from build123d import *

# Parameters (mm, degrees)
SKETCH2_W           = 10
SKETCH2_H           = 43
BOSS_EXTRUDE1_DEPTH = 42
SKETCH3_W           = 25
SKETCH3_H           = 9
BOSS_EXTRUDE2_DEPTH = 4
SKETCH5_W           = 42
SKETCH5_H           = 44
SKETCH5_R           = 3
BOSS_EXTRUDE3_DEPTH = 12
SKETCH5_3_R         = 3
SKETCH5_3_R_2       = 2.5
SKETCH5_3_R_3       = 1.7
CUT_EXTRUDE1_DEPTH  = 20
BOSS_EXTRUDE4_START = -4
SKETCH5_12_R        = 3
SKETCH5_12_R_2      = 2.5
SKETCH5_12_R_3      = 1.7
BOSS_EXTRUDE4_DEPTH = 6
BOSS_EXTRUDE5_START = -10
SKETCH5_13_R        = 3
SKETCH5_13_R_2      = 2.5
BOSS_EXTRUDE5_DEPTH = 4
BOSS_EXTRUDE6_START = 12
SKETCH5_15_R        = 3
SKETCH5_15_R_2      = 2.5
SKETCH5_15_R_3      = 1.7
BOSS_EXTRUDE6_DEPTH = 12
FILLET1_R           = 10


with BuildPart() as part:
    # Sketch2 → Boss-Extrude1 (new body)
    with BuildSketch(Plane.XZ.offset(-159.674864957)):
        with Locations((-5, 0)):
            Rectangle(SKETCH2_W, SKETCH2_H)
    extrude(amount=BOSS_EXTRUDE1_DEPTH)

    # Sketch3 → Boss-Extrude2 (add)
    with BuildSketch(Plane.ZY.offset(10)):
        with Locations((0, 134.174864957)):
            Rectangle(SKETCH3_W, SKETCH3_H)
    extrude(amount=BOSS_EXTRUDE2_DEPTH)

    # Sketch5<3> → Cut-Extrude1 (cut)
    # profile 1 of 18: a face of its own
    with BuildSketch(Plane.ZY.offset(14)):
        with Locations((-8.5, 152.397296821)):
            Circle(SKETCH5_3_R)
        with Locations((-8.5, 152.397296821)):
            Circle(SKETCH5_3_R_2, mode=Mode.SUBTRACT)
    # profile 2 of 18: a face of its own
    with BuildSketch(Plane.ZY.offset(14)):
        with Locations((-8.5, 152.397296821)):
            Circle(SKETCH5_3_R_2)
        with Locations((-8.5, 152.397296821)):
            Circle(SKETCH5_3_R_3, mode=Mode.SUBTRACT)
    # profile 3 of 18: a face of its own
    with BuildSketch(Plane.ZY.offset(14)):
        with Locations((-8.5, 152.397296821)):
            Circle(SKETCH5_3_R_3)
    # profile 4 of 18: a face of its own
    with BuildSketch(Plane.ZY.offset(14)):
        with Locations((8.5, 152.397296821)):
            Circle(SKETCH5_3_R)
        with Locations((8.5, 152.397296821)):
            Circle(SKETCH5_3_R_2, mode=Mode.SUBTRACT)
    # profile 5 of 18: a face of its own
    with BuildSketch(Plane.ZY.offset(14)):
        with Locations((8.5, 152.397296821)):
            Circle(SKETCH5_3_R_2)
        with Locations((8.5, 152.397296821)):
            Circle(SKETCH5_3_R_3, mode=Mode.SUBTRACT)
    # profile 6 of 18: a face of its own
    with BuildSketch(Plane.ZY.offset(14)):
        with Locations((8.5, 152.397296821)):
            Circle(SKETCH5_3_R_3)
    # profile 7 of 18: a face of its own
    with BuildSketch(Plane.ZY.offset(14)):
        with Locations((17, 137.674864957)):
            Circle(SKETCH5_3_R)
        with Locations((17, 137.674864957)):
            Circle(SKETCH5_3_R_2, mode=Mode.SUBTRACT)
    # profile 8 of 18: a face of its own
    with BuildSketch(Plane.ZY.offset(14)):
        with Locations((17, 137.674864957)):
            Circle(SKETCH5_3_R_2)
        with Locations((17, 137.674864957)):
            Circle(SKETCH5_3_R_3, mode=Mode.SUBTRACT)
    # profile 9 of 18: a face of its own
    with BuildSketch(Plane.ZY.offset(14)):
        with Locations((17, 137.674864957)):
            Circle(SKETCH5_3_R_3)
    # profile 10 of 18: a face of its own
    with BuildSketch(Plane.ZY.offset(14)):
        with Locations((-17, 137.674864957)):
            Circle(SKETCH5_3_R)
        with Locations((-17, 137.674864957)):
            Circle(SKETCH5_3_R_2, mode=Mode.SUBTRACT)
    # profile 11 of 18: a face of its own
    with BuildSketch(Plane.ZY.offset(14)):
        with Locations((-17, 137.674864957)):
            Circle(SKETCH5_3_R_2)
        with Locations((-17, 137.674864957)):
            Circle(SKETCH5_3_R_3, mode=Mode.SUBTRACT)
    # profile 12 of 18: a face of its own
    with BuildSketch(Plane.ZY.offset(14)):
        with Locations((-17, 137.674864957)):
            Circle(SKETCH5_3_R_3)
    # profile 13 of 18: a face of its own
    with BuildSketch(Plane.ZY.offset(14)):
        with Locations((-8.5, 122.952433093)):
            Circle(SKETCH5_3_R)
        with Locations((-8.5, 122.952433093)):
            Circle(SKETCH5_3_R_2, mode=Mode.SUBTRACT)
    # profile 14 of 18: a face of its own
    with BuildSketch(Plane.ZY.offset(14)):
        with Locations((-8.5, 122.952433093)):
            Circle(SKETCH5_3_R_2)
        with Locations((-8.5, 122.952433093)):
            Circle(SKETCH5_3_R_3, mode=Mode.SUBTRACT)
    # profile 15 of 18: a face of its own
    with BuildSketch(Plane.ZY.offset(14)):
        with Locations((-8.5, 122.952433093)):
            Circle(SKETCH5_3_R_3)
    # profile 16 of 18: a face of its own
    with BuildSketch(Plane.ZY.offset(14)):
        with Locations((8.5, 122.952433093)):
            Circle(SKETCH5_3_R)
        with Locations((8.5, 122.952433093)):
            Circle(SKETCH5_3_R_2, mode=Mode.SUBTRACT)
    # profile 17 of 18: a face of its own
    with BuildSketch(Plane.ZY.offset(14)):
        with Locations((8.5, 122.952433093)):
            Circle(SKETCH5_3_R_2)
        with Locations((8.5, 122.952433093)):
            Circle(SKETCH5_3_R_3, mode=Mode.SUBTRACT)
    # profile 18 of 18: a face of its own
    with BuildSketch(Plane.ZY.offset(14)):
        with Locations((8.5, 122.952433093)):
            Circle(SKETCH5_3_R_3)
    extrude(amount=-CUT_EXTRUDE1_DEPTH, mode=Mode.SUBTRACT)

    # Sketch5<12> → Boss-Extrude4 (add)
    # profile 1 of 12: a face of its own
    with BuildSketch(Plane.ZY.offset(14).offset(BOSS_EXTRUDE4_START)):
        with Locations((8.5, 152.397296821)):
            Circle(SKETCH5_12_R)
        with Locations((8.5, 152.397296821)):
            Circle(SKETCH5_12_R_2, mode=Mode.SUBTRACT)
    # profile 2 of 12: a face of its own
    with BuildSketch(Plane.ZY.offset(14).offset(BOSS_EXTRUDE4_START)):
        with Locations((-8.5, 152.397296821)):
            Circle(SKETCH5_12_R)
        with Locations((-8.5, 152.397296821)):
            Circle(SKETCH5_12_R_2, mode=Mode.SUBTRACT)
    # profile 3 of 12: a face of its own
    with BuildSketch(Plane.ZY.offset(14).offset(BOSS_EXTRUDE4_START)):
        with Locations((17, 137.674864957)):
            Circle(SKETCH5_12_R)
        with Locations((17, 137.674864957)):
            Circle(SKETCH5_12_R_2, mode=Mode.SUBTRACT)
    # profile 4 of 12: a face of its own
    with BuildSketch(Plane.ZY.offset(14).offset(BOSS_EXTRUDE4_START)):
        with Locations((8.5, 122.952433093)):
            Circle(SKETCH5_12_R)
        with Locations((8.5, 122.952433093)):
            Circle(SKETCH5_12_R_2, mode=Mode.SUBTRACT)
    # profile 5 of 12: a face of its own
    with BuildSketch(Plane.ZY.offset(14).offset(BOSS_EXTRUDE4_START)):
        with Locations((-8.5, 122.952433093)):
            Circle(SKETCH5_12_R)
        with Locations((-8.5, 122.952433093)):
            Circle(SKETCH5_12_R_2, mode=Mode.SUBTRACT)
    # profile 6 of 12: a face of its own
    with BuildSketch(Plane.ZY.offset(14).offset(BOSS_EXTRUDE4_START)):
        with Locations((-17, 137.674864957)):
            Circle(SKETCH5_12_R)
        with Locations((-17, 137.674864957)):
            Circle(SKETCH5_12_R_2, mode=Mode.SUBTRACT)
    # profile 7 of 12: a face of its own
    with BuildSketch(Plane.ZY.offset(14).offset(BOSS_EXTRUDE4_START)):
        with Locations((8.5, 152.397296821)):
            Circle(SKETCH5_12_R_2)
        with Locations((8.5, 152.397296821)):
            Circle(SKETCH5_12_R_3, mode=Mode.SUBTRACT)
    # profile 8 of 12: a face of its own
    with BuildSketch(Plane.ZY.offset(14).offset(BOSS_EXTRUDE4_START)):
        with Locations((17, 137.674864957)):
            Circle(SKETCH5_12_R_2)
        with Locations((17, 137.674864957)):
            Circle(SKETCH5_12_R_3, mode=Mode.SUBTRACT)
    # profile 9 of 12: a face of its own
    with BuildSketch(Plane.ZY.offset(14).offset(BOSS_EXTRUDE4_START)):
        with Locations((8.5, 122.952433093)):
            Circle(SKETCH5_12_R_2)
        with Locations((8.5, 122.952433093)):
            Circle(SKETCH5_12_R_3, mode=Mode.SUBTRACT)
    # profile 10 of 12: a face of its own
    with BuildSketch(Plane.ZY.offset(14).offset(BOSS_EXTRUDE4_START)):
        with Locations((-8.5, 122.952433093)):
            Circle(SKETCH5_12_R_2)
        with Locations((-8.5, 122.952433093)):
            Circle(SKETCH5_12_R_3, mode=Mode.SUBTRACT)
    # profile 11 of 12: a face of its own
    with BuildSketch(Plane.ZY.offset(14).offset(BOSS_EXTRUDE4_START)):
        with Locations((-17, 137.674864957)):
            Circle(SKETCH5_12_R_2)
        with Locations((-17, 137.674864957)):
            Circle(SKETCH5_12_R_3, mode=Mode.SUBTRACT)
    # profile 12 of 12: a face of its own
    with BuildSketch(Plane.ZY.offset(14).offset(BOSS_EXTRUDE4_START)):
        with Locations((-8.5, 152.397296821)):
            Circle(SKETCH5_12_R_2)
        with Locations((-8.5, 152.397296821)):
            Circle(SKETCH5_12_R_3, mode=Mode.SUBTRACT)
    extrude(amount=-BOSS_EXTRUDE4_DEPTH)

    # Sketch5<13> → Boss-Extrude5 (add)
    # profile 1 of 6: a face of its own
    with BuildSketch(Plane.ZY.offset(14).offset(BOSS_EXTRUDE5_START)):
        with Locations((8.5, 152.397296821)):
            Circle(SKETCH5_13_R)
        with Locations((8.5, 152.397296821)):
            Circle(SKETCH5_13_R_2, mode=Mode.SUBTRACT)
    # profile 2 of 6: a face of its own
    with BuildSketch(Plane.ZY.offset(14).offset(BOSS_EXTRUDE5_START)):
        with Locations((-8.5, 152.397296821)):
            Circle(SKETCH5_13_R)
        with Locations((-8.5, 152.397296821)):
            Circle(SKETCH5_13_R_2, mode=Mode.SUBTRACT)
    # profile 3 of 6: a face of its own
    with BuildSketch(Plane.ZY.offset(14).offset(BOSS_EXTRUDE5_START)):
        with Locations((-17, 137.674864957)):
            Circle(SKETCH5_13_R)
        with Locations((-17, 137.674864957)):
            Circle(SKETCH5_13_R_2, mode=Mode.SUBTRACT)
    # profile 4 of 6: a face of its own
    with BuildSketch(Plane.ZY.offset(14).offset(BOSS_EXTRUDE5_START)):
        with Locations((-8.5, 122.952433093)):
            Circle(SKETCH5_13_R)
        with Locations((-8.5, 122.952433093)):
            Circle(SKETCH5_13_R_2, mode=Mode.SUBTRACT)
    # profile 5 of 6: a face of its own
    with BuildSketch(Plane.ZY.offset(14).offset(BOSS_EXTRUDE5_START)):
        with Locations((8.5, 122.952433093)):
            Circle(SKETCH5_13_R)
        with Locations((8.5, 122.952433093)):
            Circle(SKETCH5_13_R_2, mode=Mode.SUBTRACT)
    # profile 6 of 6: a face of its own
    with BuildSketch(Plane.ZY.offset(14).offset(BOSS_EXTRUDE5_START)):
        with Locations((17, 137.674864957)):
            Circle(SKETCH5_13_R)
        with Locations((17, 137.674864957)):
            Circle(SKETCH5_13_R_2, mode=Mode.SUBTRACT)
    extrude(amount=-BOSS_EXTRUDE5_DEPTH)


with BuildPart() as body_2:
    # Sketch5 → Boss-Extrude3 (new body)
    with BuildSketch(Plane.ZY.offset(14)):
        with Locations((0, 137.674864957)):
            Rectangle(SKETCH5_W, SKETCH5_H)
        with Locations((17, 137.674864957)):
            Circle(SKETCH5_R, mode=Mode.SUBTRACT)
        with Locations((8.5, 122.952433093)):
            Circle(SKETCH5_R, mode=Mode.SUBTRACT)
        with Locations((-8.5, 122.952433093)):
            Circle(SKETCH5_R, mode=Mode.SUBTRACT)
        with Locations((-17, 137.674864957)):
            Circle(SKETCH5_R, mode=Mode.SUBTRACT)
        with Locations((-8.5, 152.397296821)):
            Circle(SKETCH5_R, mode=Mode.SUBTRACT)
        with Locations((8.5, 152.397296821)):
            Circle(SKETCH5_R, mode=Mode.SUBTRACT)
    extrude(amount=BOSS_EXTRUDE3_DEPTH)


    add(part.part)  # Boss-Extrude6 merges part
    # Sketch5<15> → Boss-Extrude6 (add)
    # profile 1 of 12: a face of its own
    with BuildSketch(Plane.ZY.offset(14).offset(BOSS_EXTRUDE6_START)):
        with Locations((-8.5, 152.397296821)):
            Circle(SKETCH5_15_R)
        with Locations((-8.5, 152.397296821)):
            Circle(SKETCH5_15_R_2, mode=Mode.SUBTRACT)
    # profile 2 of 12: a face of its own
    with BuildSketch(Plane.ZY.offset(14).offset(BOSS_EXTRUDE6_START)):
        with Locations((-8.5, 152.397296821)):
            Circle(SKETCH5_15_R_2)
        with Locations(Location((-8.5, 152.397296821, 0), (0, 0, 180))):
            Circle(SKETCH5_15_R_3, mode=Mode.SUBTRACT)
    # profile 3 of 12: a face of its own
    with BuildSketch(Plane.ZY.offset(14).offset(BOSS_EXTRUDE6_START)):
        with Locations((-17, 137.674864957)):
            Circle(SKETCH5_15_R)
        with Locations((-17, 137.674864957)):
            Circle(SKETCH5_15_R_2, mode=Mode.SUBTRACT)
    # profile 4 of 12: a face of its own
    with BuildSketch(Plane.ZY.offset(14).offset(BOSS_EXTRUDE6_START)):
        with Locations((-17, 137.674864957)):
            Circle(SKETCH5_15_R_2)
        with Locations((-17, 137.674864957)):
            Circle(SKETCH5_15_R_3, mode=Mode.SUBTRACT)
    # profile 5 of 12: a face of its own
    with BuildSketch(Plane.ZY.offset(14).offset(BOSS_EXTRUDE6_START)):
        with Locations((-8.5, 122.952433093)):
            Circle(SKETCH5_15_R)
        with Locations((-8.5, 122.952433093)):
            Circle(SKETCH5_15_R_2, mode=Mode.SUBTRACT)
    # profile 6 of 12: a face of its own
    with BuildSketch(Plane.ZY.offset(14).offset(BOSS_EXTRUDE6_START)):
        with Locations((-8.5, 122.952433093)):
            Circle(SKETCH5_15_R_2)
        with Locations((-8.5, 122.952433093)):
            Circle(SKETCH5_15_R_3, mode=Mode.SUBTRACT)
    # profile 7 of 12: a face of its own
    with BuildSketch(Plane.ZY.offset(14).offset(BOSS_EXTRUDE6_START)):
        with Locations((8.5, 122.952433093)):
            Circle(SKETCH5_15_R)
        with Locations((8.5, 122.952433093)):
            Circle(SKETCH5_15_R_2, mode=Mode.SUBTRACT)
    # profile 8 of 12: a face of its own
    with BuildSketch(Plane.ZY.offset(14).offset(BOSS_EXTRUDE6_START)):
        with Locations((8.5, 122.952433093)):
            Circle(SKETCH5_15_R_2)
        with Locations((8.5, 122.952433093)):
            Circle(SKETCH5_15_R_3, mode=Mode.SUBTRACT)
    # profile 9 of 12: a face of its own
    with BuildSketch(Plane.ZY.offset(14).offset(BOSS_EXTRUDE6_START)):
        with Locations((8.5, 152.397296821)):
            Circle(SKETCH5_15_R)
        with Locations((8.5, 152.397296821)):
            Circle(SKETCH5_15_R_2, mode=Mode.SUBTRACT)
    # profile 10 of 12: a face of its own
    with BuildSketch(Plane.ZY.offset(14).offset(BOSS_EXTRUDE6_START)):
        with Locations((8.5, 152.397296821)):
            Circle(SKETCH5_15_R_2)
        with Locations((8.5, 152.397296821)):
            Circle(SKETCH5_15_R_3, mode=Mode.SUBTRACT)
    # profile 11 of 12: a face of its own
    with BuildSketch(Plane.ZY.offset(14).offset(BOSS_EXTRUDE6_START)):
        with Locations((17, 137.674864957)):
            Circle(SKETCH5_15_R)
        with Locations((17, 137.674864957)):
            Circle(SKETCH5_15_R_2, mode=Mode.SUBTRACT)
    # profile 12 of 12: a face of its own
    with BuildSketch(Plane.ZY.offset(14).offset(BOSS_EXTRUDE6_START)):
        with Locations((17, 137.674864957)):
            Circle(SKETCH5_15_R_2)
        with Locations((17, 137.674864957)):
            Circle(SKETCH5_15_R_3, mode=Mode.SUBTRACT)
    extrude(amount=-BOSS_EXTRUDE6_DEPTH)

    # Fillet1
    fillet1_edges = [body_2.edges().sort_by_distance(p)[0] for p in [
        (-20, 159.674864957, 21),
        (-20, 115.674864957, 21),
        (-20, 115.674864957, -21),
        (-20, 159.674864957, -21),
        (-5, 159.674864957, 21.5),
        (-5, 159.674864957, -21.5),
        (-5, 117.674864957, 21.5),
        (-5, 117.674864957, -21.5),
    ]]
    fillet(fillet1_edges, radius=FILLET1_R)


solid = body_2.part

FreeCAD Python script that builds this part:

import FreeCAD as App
import Part
import Sketcher

V = App.Vector
Q = App.Units.Quantity


def edges_at(feature, points):
    """Names of the edges that pass closest to the given points."""
    edges = feature.Shape.Edges
    near = lambda p: min(range(len(edges)), key=lambda i: edges[i].distToShape(Part.Vertex(*p))[0])
    return sorted({f"Edge{near(p) + 1}" for p in points})


def add_polygon(sketch, points):
    """Adds a closed chain of lines whose ends are joined by coincident constraints."""
    first, n = sketch.GeometryCount, len(points)
    for a, b in zip(points, points[1:] + points[:1]):
        sketch.addGeometry(Part.LineSegment(App.Vector(*a, 0), App.Vector(*b, 0)), False)
    for i in range(n):
        sketch.addConstraint(Sketcher.Constraint("Coincident", first + i, 2, first + (i + 1) % n, 1))

doc = App.newDocument("Part")
body = doc.addObject("PartDesign::Body", "Body")

# Sketch on XZ plane
sketch1 = doc.addObject("Sketcher::SketchObject", "Sketch")
body.addObject(sketch1)
sketch1.AttachmentSupport = (doc.XZ_Plane, [""])
sketch1.MapMode = "FlatFace"
sketch1.AttachmentOffset = App.Placement(V(0, 0, -159.674865), App.Rotation())
add_polygon(sketch1, [(-10, 22), (-10, -22), (0, -22), (0, 22)])  # lines 0-3
sketch1.addConstraint(Sketcher.Constraint("Vertical", 0))
sketch1.addConstraint(Sketcher.Constraint("Horizontal", 1))
sketch1.addConstraint(Sketcher.Constraint("Vertical", 2))
sketch1.addConstraint(Sketcher.Constraint("Horizontal", 3))
sketch1.addConstraint(Sketcher.Constraint("Symmetric", 1, 2, 2, 2, -1, 1))
sketch1.addConstraint(Sketcher.Constraint("DistanceX", 1, 1, 1, 2, Q("10 mm")))
sketch1.addConstraint(Sketcher.Constraint("DistanceY", 0, 2, 0, 1, Q("43 mm")))
pad1 = doc.addObject("PartDesign::Pad", "Pad")
body.addObject(pad1)
pad1.Profile = sketch1
pad1.Length = 42

# Sketch on YZ plane
sketch2 = doc.addObject("Sketcher::SketchObject", "Sketch001")
body.addObject(sketch2)
sketch2.AttachmentSupport = (doc.YZ_Plane, [""])
sketch2.MapMode = "FlatFace"
sketch2.AttachmentOffset = App.Placement(V(0, 0, -10), App.Rotation())
add_polygon(sketch2, [(139, -12), (130, -12), (130, 12), (139, 12)])  # lines 0-3
sketch2.addConstraint(Sketcher.Constraint("Horizontal", 0))
sketch2.addConstraint(Sketcher.Constraint("Vertical", 1))
sketch2.addConstraint(Sketcher.Constraint("Horizontal", 2))
sketch2.addConstraint(Sketcher.Constraint("Vertical", 3))
sketch2.addConstraint(Sketcher.Constraint("DistanceX", 0, 2, 0, 1, Q("9 mm")))
sketch2.addConstraint(Sketcher.Constraint("DistanceY", 1, 1, 1, 2, Q("25 mm")))
sketch2.addConstraint(Sketcher.Constraint("DistanceY", 0, 2, -1, 1, Q("12.5 mm")))
sketch2.addConstraint(Sketcher.Constraint("DistanceX", -1, 1, 0, 2, Q("129.674865 mm")))
pad2 = doc.addObject("PartDesign::Pad", "Pad001")
body.addObject(pad2)
pad2.Profile = sketch2
pad2.Length = 4
pad2.Reversed = True

# Sketch on YZ plane
sketch3 = doc.addObject("Sketcher::SketchObject", "Sketch002")
body.addObject(sketch3)
sketch3.AttachmentSupport = (doc.YZ_Plane, [""])
sketch3.MapMode = "FlatFace"
sketch3.AttachmentOffset = App.Placement(V(0, 0, -14), App.Rotation())
sketch3.addGeometry(Part.Circle(V(152.4, -8.5, 0), V(0, 0, 1), 3), False)
sketch3.addGeometry(Part.Circle(V(152.4, 8.5, 0), V(0, 0, 1), 3), False)
sketch3.addGeometry(Part.Circle(V(137.7, 17, 0), V(0, 0, 1), 3), False)
sketch3.addGeometry(Part.Circle(V(137.7, -17, 0), V(0, 0, 1), 3), False)
sketch3.addGeometry(Part.Circle(V(123, -8.5, 0), V(0, 0, 1), 3), False)
sketch3.addGeometry(Part.Circle(V(123, 8.5, 0), V(0, 0, 1), 3), False)
sketch3.addConstraint(Sketcher.Constraint("Equal", 0, 1))
sketch3.addConstraint(Sketcher.Constraint("Equal", 1, 2))
sketch3.addConstraint(Sketcher.Constraint("Equal", 2, 3))
sketch3.addConstraint(Sketcher.Constraint("Equal", 3, 4))
sketch3.addConstraint(Sketcher.Constraint("Equal", 4, 5))
sketch3.addConstraint(Sketcher.Constraint("Symmetric", 0, 3, 1, 3, -1))
sketch3.addConstraint(Sketcher.Constraint("Symmetric", 2, 3, 3, 3, -1))
sketch3.addConstraint(Sketcher.Constraint("Symmetric", 4, 3, 5, 3, -1))
sketch3.addConstraint(Sketcher.Constraint("Horizontal", 0, 3, 4, 3))
sketch3.addConstraint(Sketcher.Constraint("Diameter", 0, Q("6 mm")))
sketch3.addConstraint(Sketcher.Constraint("DistanceY", -1, 1, 2, 3, Q("17 mm")))
sketch3.addConstraint(Sketcher.Constraint("DistanceY", 0, 3, 1, 3, Q("17 mm")))
sketch3.addConstraint(Sketcher.Constraint("DistanceX", 2, 3, 1, 3, Q("14.722432 mm")))
sketch3.addConstraint(Sketcher.Constraint("DistanceX", 4, 3, 3, 3, Q("14.722432 mm")))
sketch3.addConstraint(Sketcher.Constraint("DistanceX", -1, 1, 0, 3, Q("152.397297 mm")))
pocket1 = doc.addObject("PartDesign::Pocket", "Pocket")
body.addObject(pocket1)
pocket1.Profile = sketch3
pocket1.Length = 20
pocket1.Reversed = True

# Sketch on YZ plane
sketch4 = doc.addObject("Sketcher::SketchObject", "Sketch003")
body.addObject(sketch4)
sketch4.AttachmentSupport = (doc.YZ_Plane, [""])
sketch4.MapMode = "FlatFace"
sketch4.AttachmentOffset = App.Placement(V(0, 0, -10), App.Rotation())
sketch4.addGeometry(Part.Circle(V(152.4, 8.5, 0), V(0, 0, 1), 3), False)
sketch4.addGeometry(Part.Circle(V(152.4, 8.5, 0), V(0, 0, 1), 1.7), False)
sketch4.addGeometry(Part.Circle(V(152.4, -8.5, 0), V(0, 0, 1), 3), False)
sketch4.addGeometry(Part.Circle(V(152.4, -8.5, 0), V(0, 0, 1), 1.7), False)
sketch4.addGeometry(Part.Circle(V(137.7, 17, 0), V(0, 0, 1), 3), False)
sketch4.addGeometry(Part.Circle(V(137.7, 17, 0), V(0, 0, 1), 1.7), False)
sketch4.addGeometry(Part.Circle(V(123, 8.5, 0), V(0, 0, 1), 3), False)
sketch4.addGeometry(Part.Circle(V(123, 8.5, 0), V(0, 0, 1), 1.7), False)
sketch4.addGeometry(Part.Circle(V(123, -8.5, 0), V(0, 0, 1), 3), False)
sketch4.addGeometry(Part.Circle(V(123, -8.5, 0), V(0, 0, 1), 1.7), False)
sketch4.addGeometry(Part.Circle(V(137.7, -17, 0), V(0, 0, 1), 3), False)
sketch4.addGeometry(Part.Circle(V(137.7, -17, 0), V(0, 0, 1), 1.7), False)
sketch4.addConstraint(Sketcher.Constraint("Coincident", 1, 3, 0, 3))
sketch4.addConstraint(Sketcher.Constraint("Coincident", 3, 3, 2, 3))
sketch4.addConstraint(Sketcher.Constraint("Coincident", 5, 3, 4, 3))
sketch4.addConstraint(Sketcher.Constraint("Coincident", 7, 3, 6, 3))
sketch4.addConstraint(Sketcher.Constraint("Coincident", 9, 3, 8, 3))
sketch4.addConstraint(Sketcher.Constraint("Coincident", 11, 3, 10, 3))
sketch4.addConstraint(Sketcher.Constraint("Equal", 0, 2))
sketch4.addConstraint(Sketcher.Constraint("Equal", 1, 3))
sketch4.addConstraint(Sketcher.Constraint("Equal", 2, 4))
sketch4.addConstraint(Sketcher.Constraint("Equal", 3, 5))
sketch4.addConstraint(Sketcher.Constraint("Equal", 4, 6))
sketch4.addConstraint(Sketcher.Constraint("Equal", 5, 7))
sketch4.addConstraint(Sketcher.Constraint("Equal", 6, 8))
sketch4.addConstraint(Sketcher.Constraint("Equal", 7, 9))
sketch4.addConstraint(Sketcher.Constraint("Equal", 8, 10))
sketch4.addConstraint(Sketcher.Constraint("Equal", 9, 11))
sketch4.addConstraint(Sketcher.Constraint("Symmetric", 0, 3, 2, 3, -1))
sketch4.addConstraint(Sketcher.Constraint("Symmetric", 6, 3, 8, 3, -1))
sketch4.addConstraint(Sketcher.Constraint("Symmetric", 4, 3, 10, 3, -1))
sketch4.addConstraint(Sketcher.Constraint("Horizontal", 1, 3, 6, 3))
sketch4.addConstraint(Sketcher.Constraint("Diameter", 0, Q("6 mm")))
sketch4.addConstraint(Sketcher.Constraint("Diameter", 1, Q("3.4 mm")))
sketch4.addConstraint(Sketcher.Constraint("DistanceY", -1, 1, 4, 3, Q("17 mm")))
sketch4.addConstraint(Sketcher.Constraint("DistanceY", 2, 3, 0, 3, Q("17 mm")))
sketch4.addConstraint(Sketcher.Constraint("DistanceX", 4, 3, 0, 3, Q("14.722432 mm")))
sketch4.addConstraint(Sketcher.Constraint("DistanceX", 6, 3, 4, 3, Q("14.722432 mm")))
sketch4.addConstraint(Sketcher.Constraint("DistanceX", -1, 1, 0, 3, Q("152.397297 mm")))
pad3 = doc.addObject("PartDesign::Pad", "Pad002")
body.addObject(pad3)
pad3.Profile = sketch4
pad3.Length = 6

# Sketch on YZ plane
sketch5 = doc.addObject("Sketcher::SketchObject", "Sketch004")
body.addObject(sketch5)
sketch5.AttachmentSupport = (doc.YZ_Plane, [""])
sketch5.MapMode = "FlatFace"
sketch5.AttachmentOffset = App.Placement(V(0, 0, -4), App.Rotation())
sketch5.addGeometry(Part.Circle(V(152.4, 8.5, 0), V(0, 0, 1), 3), False)
sketch5.addGeometry(Part.Circle(V(152.4, 8.5, 0), V(0, 0, 1), 2.5), False)
sketch5.addGeometry(Part.Circle(V(152.4, -8.5, 0), V(0, 0, 1), 3), False)
sketch5.addGeometry(Part.Circle(V(152.4, -8.5, 0), V(0, 0, 1), 2.5), False)
sketch5.addGeometry(Part.Circle(V(137.7, -17, 0), V(0, 0, 1), 3), False)
sketch5.addGeometry(Part.Circle(V(137.7, -17, 0), V(0, 0, 1), 2.5), False)
sketch5.addGeometry(Part.Circle(V(123, -8.5, 0), V(0, 0, 1), 3), False)
sketch5.addGeometry(Part.Circle(V(123, -8.5, 0), V(0, 0, 1), 2.5), False)
sketch5.addGeometry(Part.Circle(V(123, 8.5, 0), V(0, 0, 1), 3), False)
sketch5.addGeometry(Part.Circle(V(123, 8.5, 0), V(0, 0, 1), 2.5), False)
sketch5.addGeometry(Part.Circle(V(137.7, 17, 0), V(0, 0, 1), 3), False)
sketch5.addGeometry(Part.Circle(V(137.7, 17, 0), V(0, 0, 1), 2.5), False)
sketch5.addConstraint(Sketcher.Constraint("Coincident", 1, 3, 0, 3))
sketch5.addConstraint(Sketcher.Constraint("Coincident", 3, 3, 2, 3))
sketch5.addConstraint(Sketcher.Constraint("Coincident", 5, 3, 4, 3))
sketch5.addConstraint(Sketcher.Constraint("Coincident", 7, 3, 6, 3))
sketch5.addConstraint(Sketcher.Constraint("Coincident", 9, 3, 8, 3))
sketch5.addConstraint(Sketcher.Constraint("Coincident", 11, 3, 10, 3))
sketch5.addConstraint(Sketcher.Constraint("Equal", 0, 2))
sketch5.addConstraint(Sketcher.Constraint("Equal", 1, 3))
sketch5.addConstraint(Sketcher.Constraint("Equal", 2, 4))
sketch5.addConstraint(Sketcher.Constraint("Equal", 3, 5))
sketch5.addConstraint(Sketcher.Constraint("Equal", 4, 6))
sketch5.addConstraint(Sketcher.Constraint("Equal", 5, 7))
sketch5.addConstraint(Sketcher.Constraint("Equal", 6, 8))
sketch5.addConstraint(Sketcher.Constraint("Equal", 7, 9))
sketch5.addConstraint(Sketcher.Constraint("Equal", 8, 10))
sketch5.addConstraint(Sketcher.Constraint("Equal", 9, 11))
sketch5.addConstraint(Sketcher.Constraint("Symmetric", 0, 3, 2, 3, -1))
sketch5.addConstraint(Sketcher.Constraint("Symmetric", 6, 3, 8, 3, -1))
sketch5.addConstraint(Sketcher.Constraint("Symmetric", 4, 3, 10, 3, -1))
sketch5.addConstraint(Sketcher.Constraint("Horizontal", 3, 3, 6, 3))
sketch5.addConstraint(Sketcher.Constraint("Diameter", 0, Q("6 mm")))
sketch5.addConstraint(Sketcher.Constraint("Diameter", 1, Q("5 mm")))
sketch5.addConstraint(Sketcher.Constraint("DistanceY", 4, 3, -1, 1, Q("17 mm")))
sketch5.addConstraint(Sketcher.Constraint("DistanceY", 2, 3, 0, 3, Q("17 mm")))
sketch5.addConstraint(Sketcher.Constraint("DistanceX", 4, 3, 2, 3, Q("14.722432 mm")))
sketch5.addConstraint(Sketcher.Constraint("DistanceX", 6, 3, 4, 3, Q("14.722432 mm")))
sketch5.addConstraint(Sketcher.Constraint("DistanceX", -1, 1, 0, 3, Q("152.397297 mm")))
pad4 = doc.addObject("PartDesign::Pad", "Pad003")
body.addObject(pad4)
pad4.Profile = sketch5
pad4.Length = 4
body2 = doc.addObject("PartDesign::Body", "Body001")

# Sketch on YZ plane
sketch6 = doc.addObject("Sketcher::SketchObject", "Sketch005")
body2.addObject(sketch6)
sketch6.AttachmentSupport = (doc.getObject("YZ_Plane001"), [""])
sketch6.MapMode = "FlatFace"
sketch6.AttachmentOffset = App.Placement(V(0, 0, -14), App.Rotation())
add_polygon(sketch6, [(159.7, -21), (115.7, -21), (115.7, 21), (159.7, 21)])  # lines 0-3
sketch6.addGeometry(Part.Circle(V(123, -8.5, 0), V(0, 0, 1), 3), False)  # 4
sketch6.addGeometry(Part.Circle(V(123, 8.5, 0), V(0, 0, 1), 3), False)  # 5
sketch6.addGeometry(Part.Circle(V(137.7, -17, 0), V(0, 0, 1), 3), False)  # 6
sketch6.addGeometry(Part.Circle(V(152.4, -8.5, 0), V(0, 0, 1), 3), False)  # 7
sketch6.addGeometry(Part.Circle(V(137.7, 17, 0), V(0, 0, 1), 3), False)  # 8
sketch6.addGeometry(Part.Circle(V(152.4, 8.5, 0), V(0, 0, 1), 3), False)  # 9
sketch6.addConstraint(Sketcher.Constraint("Horizontal", 0))
sketch6.addConstraint(Sketcher.Constraint("Vertical", 1))
sketch6.addConstraint(Sketcher.Constraint("Horizontal", 2))
sketch6.addConstraint(Sketcher.Constraint("Vertical", 3))
sketch6.addConstraint(Sketcher.Constraint("Equal", 4, 5))
sketch6.addConstraint(Sketcher.Constraint("Equal", 5, 6))
sketch6.addConstraint(Sketcher.Constraint("Equal", 6, 7))
sketch6.addConstraint(Sketcher.Constraint("Equal", 7, 8))
sketch6.addConstraint(Sketcher.Constraint("Equal", 8, 9))
sketch6.addConstraint(Sketcher.Constraint("Symmetric", 4, 3, 5, 3, -1))
sketch6.addConstraint(Sketcher.Constraint("Symmetric", 6, 3, 8, 3, -1))
sketch6.addConstraint(Sketcher.Constraint("Symmetric", 7, 3, 9, 3, -1))
sketch6.addConstraint(Sketcher.Constraint("Horizontal", 4, 3, 7, 3))
sketch6.addConstraint(Sketcher.Constraint("Diameter", 4, Q("6 mm")))
sketch6.addConstraint(Sketcher.Constraint("DistanceX", 0, 2, 0, 1, Q("44 mm")))
sketch6.addConstraint(Sketcher.Constraint("DistanceY", 1, 1, 1, 2, Q("42 mm")))
sketch6.addConstraint(Sketcher.Constraint("DistanceY", 6, 3, -1, 1, Q("17 mm")))
sketch6.addConstraint(Sketcher.Constraint("DistanceY", 0, 2, -1, 1, Q("21 mm")))
sketch6.addConstraint(Sketcher.Constraint("DistanceY", 4, 3, 5, 3, Q("17 mm")))
sketch6.addConstraint(Sketcher.Constraint("DistanceX", 0, 2, 6, 3, Q("22 mm")))
sketch6.addConstraint(Sketcher.Constraint("DistanceX", 4, 3, 6, 3, Q("14.722432 mm")))
sketch6.addConstraint(Sketcher.Constraint("DistanceX", 6, 3, 7, 3, Q("14.722432 mm")))
sketch6.addConstraint(Sketcher.Constraint("DistanceX", -1, 1, 4, 3, Q("122.952433 mm")))
pad5 = doc.addObject("PartDesign::Pad", "Pad004")
body2.addObject(pad5)
pad5.Profile = sketch6
pad5.Length = 12
pad5.Reversed = True
doc.recompute()

boolean = doc.addObject("PartDesign::Boolean", "Boolean")
body2.addObject(boolean)
boolean.Type = "Fuse"
boolean.addObjects([body])

# Sketch on YZ plane
sketch7 = doc.addObject("Sketcher::SketchObject", "Sketch006")
body2.addObject(sketch7)
sketch7.AttachmentSupport = (doc.getObject("YZ_Plane001"), [""])
sketch7.MapMode = "FlatFace"
sketch7.AttachmentOffset = App.Placement(V(0, 0, -26), App.Rotation())
sketch7.addGeometry(Part.Circle(V(152.4, -8.5, 0), V(0, 0, 1), 3), False)
sketch7.addGeometry(Part.Circle(V(152.4, -8.5, 0), V(0, 0, 1), 1.7), False)
sketch7.addGeometry(Part.Circle(V(137.7, -17, 0), V(0, 0, 1), 3), False)
sketch7.addGeometry(Part.Circle(V(137.7, -17, 0), V(0, 0, 1), 1.7), False)
sketch7.addGeometry(Part.Circle(V(123, -8.5, 0), V(0, 0, 1), 3), False)
sketch7.addGeometry(Part.Circle(V(123, -8.5, 0), V(0, 0, 1), 1.7), False)
sketch7.addGeometry(Part.Circle(V(123, 8.5, 0), V(0, 0, 1), 3), False)
sketch7.addGeometry(Part.Circle(V(123, 8.5, 0), V(0, 0, 1), 1.7), False)
sketch7.addGeometry(Part.Circle(V(152.4, 8.5, 0), V(0, 0, 1), 3), False)
sketch7.addGeometry(Part.Circle(V(152.4, 8.5, 0), V(0, 0, 1), 1.7), False)
sketch7.addGeometry(Part.Circle(V(137.7, 17, 0), V(0, 0, 1), 3), False)
sketch7.addGeometry(Part.Circle(V(137.7, 17, 0), V(0, 0, 1), 1.7), False)
sketch7.addConstraint(Sketcher.Constraint("Coincident", 1, 3, 0, 3))
sketch7.addConstraint(Sketcher.Constraint("Coincident", 3, 3, 2, 3))
sketch7.addConstraint(Sketcher.Constraint("Coincident", 5, 3, 4, 3))
sketch7.addConstraint(Sketcher.Constraint("Coincident", 7, 3, 6, 3))
sketch7.addConstraint(Sketcher.Constraint("Coincident", 9, 3, 8, 3))
sketch7.addConstraint(Sketcher.Constraint("Coincident", 11, 3, 10, 3))
sketch7.addConstraint(Sketcher.Constraint("Equal", 0, 2))
sketch7.addConstraint(Sketcher.Constraint("Equal", 1, 3))
sketch7.addConstraint(Sketcher.Constraint("Equal", 2, 4))
sketch7.addConstraint(Sketcher.Constraint("Equal", 3, 5))
sketch7.addConstraint(Sketcher.Constraint("Equal", 4, 6))
sketch7.addConstraint(Sketcher.Constraint("Equal", 5, 7))
sketch7.addConstraint(Sketcher.Constraint("Equal", 6, 8))
sketch7.addConstraint(Sketcher.Constraint("Equal", 7, 9))
sketch7.addConstraint(Sketcher.Constraint("Equal", 8, 10))
sketch7.addConstraint(Sketcher.Constraint("Equal", 9, 11))
sketch7.addConstraint(Sketcher.Constraint("Symmetric", 4, 3, 6, 3, -1))
sketch7.addConstraint(Sketcher.Constraint("Symmetric", 0, 3, 8, 3, -1))
sketch7.addConstraint(Sketcher.Constraint("Symmetric", 2, 3, 10, 3, -1))
sketch7.addConstraint(Sketcher.Constraint("Horizontal", 1, 3, 4, 3))
sketch7.addConstraint(Sketcher.Constraint("Diameter", 0, Q("6 mm")))
sketch7.addConstraint(Sketcher.Constraint("Diameter", 1, Q("3.4 mm")))
sketch7.addConstraint(Sketcher.Constraint("DistanceY", 2, 3, -1, 1, Q("17 mm")))
sketch7.addConstraint(Sketcher.Constraint("DistanceY", 4, 3, 6, 3, Q("17 mm")))
sketch7.addConstraint(Sketcher.Constraint("DistanceX", 2, 3, 0, 3, Q("14.722432 mm")))
sketch7.addConstraint(Sketcher.Constraint("DistanceX", 4, 3, 2, 3, Q("14.722432 mm")))
sketch7.addConstraint(Sketcher.Constraint("DistanceX", -1, 1, 0, 3, Q("152.397297 mm")))
pad6 = doc.addObject("PartDesign::Pad", "Pad005")
body2.addObject(pad6)
pad6.Profile = sketch7
pad6.Length = 12
doc.recompute()

fillet = doc.addObject("PartDesign::Fillet", "Fillet")
body2.addObject(fillet)
fillet.Base = (pad6, edges_at(pad6, [
    (-20, 159.675, 21),
    (-20, 115.675, 21),
    (-20, 115.675, -21),
    (-20, 159.675, -21),
    (-5, 159.675, 21.5),
    (-5, 159.675, -21.5),
    (-5, 117.675, 21.5),
    (-5, 117.675, -21.5),
]))
fillet.Radius = 10

doc.recompute()
